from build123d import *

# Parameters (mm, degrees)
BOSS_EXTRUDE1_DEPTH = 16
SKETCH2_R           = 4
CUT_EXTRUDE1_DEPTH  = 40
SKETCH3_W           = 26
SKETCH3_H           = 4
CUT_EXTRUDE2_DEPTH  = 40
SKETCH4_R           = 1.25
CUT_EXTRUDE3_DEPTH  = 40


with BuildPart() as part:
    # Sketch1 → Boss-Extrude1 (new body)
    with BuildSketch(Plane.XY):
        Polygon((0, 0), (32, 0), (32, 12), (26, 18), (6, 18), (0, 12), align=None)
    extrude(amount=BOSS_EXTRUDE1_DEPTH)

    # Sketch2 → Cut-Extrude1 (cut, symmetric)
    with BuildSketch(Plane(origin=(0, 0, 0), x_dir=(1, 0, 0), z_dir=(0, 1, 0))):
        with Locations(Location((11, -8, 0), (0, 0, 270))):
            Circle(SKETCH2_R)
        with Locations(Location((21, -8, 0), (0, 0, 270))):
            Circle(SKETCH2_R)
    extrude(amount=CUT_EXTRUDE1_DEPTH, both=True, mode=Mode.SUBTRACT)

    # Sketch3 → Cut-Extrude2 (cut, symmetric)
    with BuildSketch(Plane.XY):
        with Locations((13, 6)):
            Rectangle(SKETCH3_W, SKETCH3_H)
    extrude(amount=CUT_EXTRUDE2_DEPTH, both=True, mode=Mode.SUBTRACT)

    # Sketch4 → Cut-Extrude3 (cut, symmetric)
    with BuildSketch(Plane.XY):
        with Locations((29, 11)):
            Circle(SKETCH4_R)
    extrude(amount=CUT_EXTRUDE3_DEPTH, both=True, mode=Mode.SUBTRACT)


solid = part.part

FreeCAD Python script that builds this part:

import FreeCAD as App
import Part
import Sketcher

V = App.Vector
Q = App.Units.Quantity

doc = App.newDocument("Part")
body = doc.addObject("PartDesign::Body", "Body")

# Sketch on XY plane
sketch1 = doc.addObject("Sketcher::SketchObject", "Sketch")
body.addObject(sketch1)
sketch1.AttachmentSupport = (doc.XY_Plane, [""])
sketch1.MapMode = "FlatFace"
sketch1.addGeometry(Part.LineSegment(V(0, 0, 0), V(32, 0, 0)), False)
sketch1.addGeometry(Part.LineSegment(V(32, 0, 0), V(32, 12, 0)), False)
sketch1.addGeometry(Part.LineSegment(V(32, 12, 0), V(26, 18, 0)), False)
sketch1.addGeometry(Part.LineSegment(V(26, 18, 0), V(6, 18, 0)), False)
sketch1.addGeometry(Part.LineSegment(V(6, 18, 0), V(0, 12, 0)), False)
sketch1.addGeometry(Part.LineSegment(V(0, 12, 0), V(0, 0, 0)), False)
sketch1.addConstraint(Sketcher.Constraint("Coincident", 0, 2, 1, 1))
sketch1.addConstraint(Sketcher.Constraint("Coincident", 1, 2, 2, 1))
sketch1.addConstraint(Sketcher.Constraint("Coincident", 2, 2, 3, 1))
sketch1.addConstraint(Sketcher.Constraint("Coincident", 3, 2, 4, 1))
sketch1.addConstraint(Sketcher.Constraint("Coincident", 4, 2, 5, 1))
sketch1.addConstraint(Sketcher.Constraint("Coincident", 5, 2, 0, 1))
sketch1.addConstraint(Sketcher.Constraint("Horizontal", 0))
sketch1.addConstraint(Sketcher.Constraint("Vertical", 1))
sketch1.addConstraint(Sketcher.Constraint("Horizontal", 3))
sketch1.addConstraint(Sketcher.Constraint("Vertical", 5))
sketch1.addConstraint(Sketcher.Constraint("Coincident", 5, 2, -1, 1))
sketch1.addConstraint(Sketcher.Constraint("Perpendicular", 2, 4))
sketch1.addConstraint(Sketcher.Constraint("Horizontal", 1, 2, 4, 2))
sketch1.addConstraint(Sketcher.Constraint("Equal", 2, 4))
sketch1.addConstraint(Sketcher.Constraint("DistanceX", 0, 1, 0, 2, Q("32 mm")))
sketch1.addConstraint(Sketcher.Constraint("DistanceX", 3, 2, 3, 1, Q("20 mm")))
sketch1.addConstraint(Sketcher.Constraint("DistanceY", 1, 1, 1, 2, Q("12 mm")))
pad1 = doc.addObject("PartDesign::Pad", "Pad")
body.addObject(pad1)
pad1.Profile = sketch1
pad1.Length = 16

# Sketch on XZ plane
sketch2 = doc.addObject("Sketcher::SketchObject", "Sketch001")
body.addObject(sketch2)
sketch2.AttachmentSupport = (doc.XZ_Plane, [""])
sketch2.MapMode = "FlatFace"
sketch2.addGeometry(Part.Circle(V(11, 8, 0), V(0, 0, 1), 4), False)
sketch2.addGeometry(Part.Circle(V(21, 8, 0), V(0, 0, 1), 4), False)
sketch2.addConstraint(Sketcher.Constraint("Equal", 0, 1))
sketch2.addConstraint(Sketcher.Constraint("Horizontal", 0, 3, 1, 3))
sketch2.addConstraint(Sketcher.Constraint("Diameter", 0, Q("8 mm")))
sketch2.addConstraint(Sketcher.Constraint("DistanceX", -1, 1, 0, 3, Q("11 mm")))
sketch2.addConstraint(Sketcher.Constraint("DistanceY", -1, 1, 0, 3, Q("8 mm")))
sketch2.addConstraint(Sketcher.Constraint("DistanceX", -1, 1, 1, 3, Q("21 mm")))
pocket1 = doc.addObject("PartDesign::Pocket", "Pocket")
body.addObject(pocket1)
pocket1.Profile = sketch2
pocket1.Length = 80
pocket1.Midplane = True

# Sketch on XY plane
sketch3 = doc.addObject("Sketcher::SketchObject", "Sketch002")
body.addObject(sketch3)
sketch3.AttachmentSupport = (doc.XY_Plane, [""])
sketch3.MapMode = "FlatFace"
sketch3.addGeometry(Part.LineSegment(V(0, 8, 0), V(0, 4, 0)), False)
sketch3.addGeometry(Part.LineSegment(V(0, 4, 0), V(26, 4, 0)), False)
sketch3.addGeometry(Part.LineSegment(V(26, 4, 0), V(26, 8, 0)), False)
sketch3.addGeometry(Part.LineSegment(V(26, 8, 0), V(0, 8, 0)), False)
sketch3.addConstraint(Sketcher.Constraint("Coincident", 0, 2, 1, 1))
sketch3.addConstraint(Sketcher.Constraint("Coincident", 1, 2, 2, 1))
sketch3.addConstraint(Sketcher.Constraint("Coincident", 2, 2, 3, 1))
sketch3.addConstraint(Sketcher.Constraint("Coincident", 3, 2, 0, 1))
sketch3.addConstraint(Sketcher.Constraint("Vertical", 0))
sketch3.addConstraint(Sketcher.Constraint("Horizontal", 1))
sketch3.addConstraint(Sketcher.Constraint("Vertical", 2))
sketch3.addConstraint(Sketcher.Constraint("Horizontal", 3))
sketch3.addConstraint(Sketcher.Constraint("PointOnObject", 0, 2, -2))
sketch3.addConstraint(Sketcher.Constraint("DistanceX", 1, 1, 1, 2, Q("26 mm")))
sketch3.addConstraint(Sketcher.Constraint("DistanceY", 0, 2, 0, 1, Q("4 mm")))
sketch3.addConstraint(Sketcher.Constraint("DistanceY", -1, 1, 0, 2, Q("4 mm")))
pocket2 = doc.addObject("PartDesign::Pocket", "Pocket001")
body.addObject(pocket2)
pocket2.Profile = sketch3
pocket2.Length = 80
pocket2.Midplane = True

# Sketch on XY plane
sketch4 = doc.addObject("Sketcher::SketchObject", "Sketch003")
body.addObject(sketch4)
sketch4.AttachmentSupport = (doc.XY_Plane, [""])
sketch4.MapMode = "FlatFace"
sketch4.addGeometry(Part.Circle(V(29, 11, 0), V(0, 0, 1), 1.2), False)
sketch4.addConstraint(Sketcher.Constraint("Diameter", 0, Q("2.5 mm")))
sketch4.addConstraint(Sketcher.Constraint("DistanceX", -1, 1, 0, 3, Q("29 mm")))
sketch4.addConstraint(Sketcher.Constraint("DistanceY", -1, 1, 0, 3, Q("11 mm")))
pocket3 = doc.addObject("PartDesign::Pocket", "Pocket002")
body.addObject(pocket3)
pocket3.Profile = sketch4
pocket3.Length = 80
pocket3.Midplane = True

doc.recompute()
